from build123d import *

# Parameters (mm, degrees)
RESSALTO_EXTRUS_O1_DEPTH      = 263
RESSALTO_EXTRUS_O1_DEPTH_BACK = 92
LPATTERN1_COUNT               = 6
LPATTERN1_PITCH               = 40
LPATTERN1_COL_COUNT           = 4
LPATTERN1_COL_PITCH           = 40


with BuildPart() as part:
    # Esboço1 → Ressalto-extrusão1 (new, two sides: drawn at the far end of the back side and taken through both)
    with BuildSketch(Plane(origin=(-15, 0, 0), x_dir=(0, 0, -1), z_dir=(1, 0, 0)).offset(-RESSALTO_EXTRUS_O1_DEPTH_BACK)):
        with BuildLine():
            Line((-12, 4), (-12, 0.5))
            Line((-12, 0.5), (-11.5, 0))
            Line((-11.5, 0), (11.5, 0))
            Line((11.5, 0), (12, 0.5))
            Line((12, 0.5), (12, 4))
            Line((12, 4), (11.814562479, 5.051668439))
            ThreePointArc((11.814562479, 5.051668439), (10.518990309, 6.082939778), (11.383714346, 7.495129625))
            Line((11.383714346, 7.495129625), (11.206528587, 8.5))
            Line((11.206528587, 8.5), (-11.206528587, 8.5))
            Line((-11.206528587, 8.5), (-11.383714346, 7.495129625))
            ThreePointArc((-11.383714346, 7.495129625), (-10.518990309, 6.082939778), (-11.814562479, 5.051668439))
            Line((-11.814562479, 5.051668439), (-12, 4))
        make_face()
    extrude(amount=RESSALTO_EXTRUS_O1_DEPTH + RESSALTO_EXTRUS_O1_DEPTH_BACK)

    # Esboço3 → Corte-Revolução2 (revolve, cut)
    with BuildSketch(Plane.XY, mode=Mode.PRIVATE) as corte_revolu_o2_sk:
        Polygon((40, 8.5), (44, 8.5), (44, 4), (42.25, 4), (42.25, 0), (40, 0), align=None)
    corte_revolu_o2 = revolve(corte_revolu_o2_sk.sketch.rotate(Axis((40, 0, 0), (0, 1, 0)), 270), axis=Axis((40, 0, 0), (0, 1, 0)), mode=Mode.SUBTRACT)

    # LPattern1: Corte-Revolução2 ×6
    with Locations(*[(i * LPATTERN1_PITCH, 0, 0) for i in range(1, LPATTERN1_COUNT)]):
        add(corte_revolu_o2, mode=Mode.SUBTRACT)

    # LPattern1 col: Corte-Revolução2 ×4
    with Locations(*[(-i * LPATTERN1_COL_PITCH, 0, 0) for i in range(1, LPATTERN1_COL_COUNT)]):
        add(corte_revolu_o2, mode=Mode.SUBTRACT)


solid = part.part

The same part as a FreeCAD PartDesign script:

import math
import FreeCAD as App
import Part
import Sketcher

V = App.Vector
Q = App.Units.Quantity

doc = App.newDocument("Part")
body = doc.addObject("PartDesign::Body", "Body")

sketch1 = body.newObject("Sketcher::SketchObject", "Sketch")
sketch1.AttachmentSupport = (doc.getObject("YZ_Plane"), [""])
sketch1.MapMode = "FlatFace"
sketch1.AttachmentOffset = App.Placement(V(0, 0, -15), App.Rotation())
sketch1.addGeometry([
    Part.LineSegment(V(4, 12, 0), V(0.5, 12, 0)),
    Part.LineSegment(V(0.5, 12, 0), V(0, 11.5, 0)),
    Part.LineSegment(V(0, 11.5, 0), V(0, -11.5, 0)),
    Part.LineSegment(V(0, -11.5, 0), V(0.5, -12, 0)),
    Part.LineSegment(V(0.5, -12, 0), V(4, -12, 0)),
    Part.LineSegment(V(4, -12, 0), V(5.051668, -11.814562, 0)),
    Part.ArcOfCircle(Part.Circle(V(6.3, -11.75, 0), V(0, 0, 1), 1.25), math.radians(17.039357), math.radians(182.960643)),
    Part.LineSegment(V(7.49513, -11.383714, 0), V(8.5, -11.206529, 0)),
    Part.LineSegment(V(8.5, -11.206529, 0), V(8.5, 11.206529, 0)),
    Part.LineSegment(V(8.5, 11.206529, 0), V(7.49513, 11.383714, 0)),
    Part.ArcOfCircle(Part.Circle(V(6.3, 11.75, 0), V(0, 0, 1), 1.25), math.radians(177.039357), math.radians(342.960643)),
    Part.LineSegment(V(5.051668, 11.814562, 0), V(4, 12, 0)),
], False)
sketch1.addConstraint([
    Sketcher.Constraint("Coincident", 0, 2, 1, 1),
    Sketcher.Constraint("Coincident", 1, 2, 2, 1),
    Sketcher.Constraint("Coincident", 2, 2, 3, 1),
    Sketcher.Constraint("Coincident", 3, 2, 4, 1),
    Sketcher.Constraint("Coincident", 4, 2, 5, 1),
    Sketcher.Constraint("Coincident", 5, 2, 6, 2),
    Sketcher.Constraint("Coincident", 6, 1, 7, 1),
    Sketcher.Constraint("Coincident", 7, 2, 8, 1),
    Sketcher.Constraint("Coincident", 8, 2, 9, 1),
    Sketcher.Constraint("Coincident", 9, 2, 10, 2),
    Sketcher.Constraint("Coincident", 10, 1, 11, 1),
    Sketcher.Constraint("Coincident", 11, 2, 0, 1),
    Sketcher.Constraint("Horizontal", 0),
    Sketcher.Constraint("Vertical", 2),
    Sketcher.Constraint("Horizontal", 4),
    Sketcher.Constraint("Vertical", 8),
    Sketcher.Constraint("Equal", 6, 10),
    Sketcher.Constraint("Symmetric", 1, 2, 2, 2, -1, 1),
    Sketcher.Constraint("Symmetric", 6, 3, 10, 3, -1),
    Sketcher.Constraint("Symmetric", 0, 2, 3, 2, -1),
    Sketcher.Constraint("Perpendicular", 1, 3),
    Sketcher.Constraint("Parallel", 5, 7),
    Sketcher.Constraint("Parallel", 9, 11),
    Sketcher.Constraint("Vertical", 6, 1, 9, 2),
    Sketcher.Constraint("Vertical", 5, 2, 10, 1),
    Sketcher.Constraint("Vertical", 4, 2, 11, 2),
    Sketcher.Constraint("DistanceY", 2, 2, 2, 1, Q("23 mm")),
    Sketcher.Constraint("Angle", 5, Q("10 deg")),
    Sketcher.Constraint("Radius", 6, Q("1.25 mm")),
    Sketcher.Constraint("DistanceX", 0, 2, 0, 1, Q("3.5 mm")),
    Sketcher.Constraint("DistanceY", -1, 1, 0, 2, Q("12 mm")),
    Sketcher.Constraint("DistanceX", 3, 2, 7, 2, Q("8 mm")),
    Sketcher.Constraint("DistanceX", -1, 1, 6, 3, Q("6.3 mm")),
    Sketcher.Constraint("DistanceY", 6, 3, 10, 3, Q("23.5 mm")),
    Sketcher.Constraint("DistanceY", 8, 1, 8, 2, Q("22.413057 mm")),
])
pad1 = body.newObject("PartDesign::Pad", "Pad")
pad1.Profile = sketch1
pad1.Type = "TwoLengths"
pad1.Length = 263
pad1.Length2 = 92

sketch2 = body.newObject("Sketcher::SketchObject", "Sketch001")
sketch2.AttachmentSupport = (doc.getObject("XY_Plane"), [""])
sketch2.MapMode = "FlatFace"
sketch2.addGeometry([
    Part.LineSegment(V(44, 8.5, 0), V(40, 8.5, 0)),
    Part.LineSegment(V(40, 8.5, 0), V(40, 0, 0)),
    Part.LineSegment(V(40, 0, 0), V(42.25, 0, 0)),
    Part.LineSegment(V(42.25, 0, 0), V(42.25, 4, 0)),
    Part.LineSegment(V(42.25, 4, 0), V(44, 4, 0)),
    Part.LineSegment(V(44, 4, 0), V(44, 8.5, 0)),
], False)
sketch2.addGeometry(Part.LineSegment(V(40, 0, 0), V(40, 8.5, 0)), True)
sketch2.addConstraint([
    Sketcher.Constraint("Coincident", 0, 2, 1, 1),
    Sketcher.Constraint("Coincident", 1, 2, 2, 1),
    Sketcher.Constraint("Coincident", 2, 2, 3, 1),
    Sketcher.Constraint("Coincident", 3, 2, 4, 1),
    Sketcher.Constraint("Coincident", 4, 2, 5, 1),
    Sketcher.Constraint("Coincident", 5, 2, 0, 1),
    Sketcher.Constraint("Horizontal", 0),
    Sketcher.Constraint("Vertical", 1),
    Sketcher.Constraint("Horizontal", 2),
    Sketcher.Constraint("Vertical", 3),
    Sketcher.Constraint("Horizontal", 4),
    Sketcher.Constraint("Vertical", 5),
    Sketcher.Constraint("Vertical", 6),
    Sketcher.Constraint("Coincident", 6, 1, 1, 2),
    Sketcher.Constraint("PointOnObject", 1, 2, -1),
    Sketcher.Constraint("Horizontal", 5, 2, 6, 2),
    Sketcher.Constraint("Equal", 0, 3),
    Sketcher.Constraint("DistanceX", 0, 2, 0, 1, Q("4 mm")),
    Sketcher.Constraint("DistanceY", 1, 2, 1, 1, Q("8.5 mm")),
    Sketcher.Constraint("DistanceX", -1, 1, 0, 2, Q("40 mm")),
    Sketcher.Constraint("DistanceX", 2, 1, 2, 2, Q("2.25 mm")),
])
groove = body.newObject("PartDesign::Groove", "Groove")
groove.Profile = sketch2
groove.ReferenceAxis = (sketch2, ["Axis0"])
groove.Angle = 360
doc.recompute()

linearpattern = body.newObject("PartDesign::LinearPattern", "LinearPattern")
linearpattern.Originals = [groove]
linearpattern.Direction = (doc.getObject("X_Axis"), [""])
linearpattern.Mode = "offset"
linearpattern.Offset = 40
linearpattern.Occurrences = 6
body.Tip = linearpattern
doc.recompute()

linearpattern2 = body.newObject("PartDesign::LinearPattern", "LinearPattern001")
linearpattern2.Originals = [groove]
linearpattern2.Direction = (doc.getObject("X_Axis"), [""])
linearpattern2.Mode = "offset"
linearpattern2.Offset = 40
linearpattern2.Occurrences = 4
linearpattern2.Reversed = True
body.Tip = linearpattern2

doc.recompute()
